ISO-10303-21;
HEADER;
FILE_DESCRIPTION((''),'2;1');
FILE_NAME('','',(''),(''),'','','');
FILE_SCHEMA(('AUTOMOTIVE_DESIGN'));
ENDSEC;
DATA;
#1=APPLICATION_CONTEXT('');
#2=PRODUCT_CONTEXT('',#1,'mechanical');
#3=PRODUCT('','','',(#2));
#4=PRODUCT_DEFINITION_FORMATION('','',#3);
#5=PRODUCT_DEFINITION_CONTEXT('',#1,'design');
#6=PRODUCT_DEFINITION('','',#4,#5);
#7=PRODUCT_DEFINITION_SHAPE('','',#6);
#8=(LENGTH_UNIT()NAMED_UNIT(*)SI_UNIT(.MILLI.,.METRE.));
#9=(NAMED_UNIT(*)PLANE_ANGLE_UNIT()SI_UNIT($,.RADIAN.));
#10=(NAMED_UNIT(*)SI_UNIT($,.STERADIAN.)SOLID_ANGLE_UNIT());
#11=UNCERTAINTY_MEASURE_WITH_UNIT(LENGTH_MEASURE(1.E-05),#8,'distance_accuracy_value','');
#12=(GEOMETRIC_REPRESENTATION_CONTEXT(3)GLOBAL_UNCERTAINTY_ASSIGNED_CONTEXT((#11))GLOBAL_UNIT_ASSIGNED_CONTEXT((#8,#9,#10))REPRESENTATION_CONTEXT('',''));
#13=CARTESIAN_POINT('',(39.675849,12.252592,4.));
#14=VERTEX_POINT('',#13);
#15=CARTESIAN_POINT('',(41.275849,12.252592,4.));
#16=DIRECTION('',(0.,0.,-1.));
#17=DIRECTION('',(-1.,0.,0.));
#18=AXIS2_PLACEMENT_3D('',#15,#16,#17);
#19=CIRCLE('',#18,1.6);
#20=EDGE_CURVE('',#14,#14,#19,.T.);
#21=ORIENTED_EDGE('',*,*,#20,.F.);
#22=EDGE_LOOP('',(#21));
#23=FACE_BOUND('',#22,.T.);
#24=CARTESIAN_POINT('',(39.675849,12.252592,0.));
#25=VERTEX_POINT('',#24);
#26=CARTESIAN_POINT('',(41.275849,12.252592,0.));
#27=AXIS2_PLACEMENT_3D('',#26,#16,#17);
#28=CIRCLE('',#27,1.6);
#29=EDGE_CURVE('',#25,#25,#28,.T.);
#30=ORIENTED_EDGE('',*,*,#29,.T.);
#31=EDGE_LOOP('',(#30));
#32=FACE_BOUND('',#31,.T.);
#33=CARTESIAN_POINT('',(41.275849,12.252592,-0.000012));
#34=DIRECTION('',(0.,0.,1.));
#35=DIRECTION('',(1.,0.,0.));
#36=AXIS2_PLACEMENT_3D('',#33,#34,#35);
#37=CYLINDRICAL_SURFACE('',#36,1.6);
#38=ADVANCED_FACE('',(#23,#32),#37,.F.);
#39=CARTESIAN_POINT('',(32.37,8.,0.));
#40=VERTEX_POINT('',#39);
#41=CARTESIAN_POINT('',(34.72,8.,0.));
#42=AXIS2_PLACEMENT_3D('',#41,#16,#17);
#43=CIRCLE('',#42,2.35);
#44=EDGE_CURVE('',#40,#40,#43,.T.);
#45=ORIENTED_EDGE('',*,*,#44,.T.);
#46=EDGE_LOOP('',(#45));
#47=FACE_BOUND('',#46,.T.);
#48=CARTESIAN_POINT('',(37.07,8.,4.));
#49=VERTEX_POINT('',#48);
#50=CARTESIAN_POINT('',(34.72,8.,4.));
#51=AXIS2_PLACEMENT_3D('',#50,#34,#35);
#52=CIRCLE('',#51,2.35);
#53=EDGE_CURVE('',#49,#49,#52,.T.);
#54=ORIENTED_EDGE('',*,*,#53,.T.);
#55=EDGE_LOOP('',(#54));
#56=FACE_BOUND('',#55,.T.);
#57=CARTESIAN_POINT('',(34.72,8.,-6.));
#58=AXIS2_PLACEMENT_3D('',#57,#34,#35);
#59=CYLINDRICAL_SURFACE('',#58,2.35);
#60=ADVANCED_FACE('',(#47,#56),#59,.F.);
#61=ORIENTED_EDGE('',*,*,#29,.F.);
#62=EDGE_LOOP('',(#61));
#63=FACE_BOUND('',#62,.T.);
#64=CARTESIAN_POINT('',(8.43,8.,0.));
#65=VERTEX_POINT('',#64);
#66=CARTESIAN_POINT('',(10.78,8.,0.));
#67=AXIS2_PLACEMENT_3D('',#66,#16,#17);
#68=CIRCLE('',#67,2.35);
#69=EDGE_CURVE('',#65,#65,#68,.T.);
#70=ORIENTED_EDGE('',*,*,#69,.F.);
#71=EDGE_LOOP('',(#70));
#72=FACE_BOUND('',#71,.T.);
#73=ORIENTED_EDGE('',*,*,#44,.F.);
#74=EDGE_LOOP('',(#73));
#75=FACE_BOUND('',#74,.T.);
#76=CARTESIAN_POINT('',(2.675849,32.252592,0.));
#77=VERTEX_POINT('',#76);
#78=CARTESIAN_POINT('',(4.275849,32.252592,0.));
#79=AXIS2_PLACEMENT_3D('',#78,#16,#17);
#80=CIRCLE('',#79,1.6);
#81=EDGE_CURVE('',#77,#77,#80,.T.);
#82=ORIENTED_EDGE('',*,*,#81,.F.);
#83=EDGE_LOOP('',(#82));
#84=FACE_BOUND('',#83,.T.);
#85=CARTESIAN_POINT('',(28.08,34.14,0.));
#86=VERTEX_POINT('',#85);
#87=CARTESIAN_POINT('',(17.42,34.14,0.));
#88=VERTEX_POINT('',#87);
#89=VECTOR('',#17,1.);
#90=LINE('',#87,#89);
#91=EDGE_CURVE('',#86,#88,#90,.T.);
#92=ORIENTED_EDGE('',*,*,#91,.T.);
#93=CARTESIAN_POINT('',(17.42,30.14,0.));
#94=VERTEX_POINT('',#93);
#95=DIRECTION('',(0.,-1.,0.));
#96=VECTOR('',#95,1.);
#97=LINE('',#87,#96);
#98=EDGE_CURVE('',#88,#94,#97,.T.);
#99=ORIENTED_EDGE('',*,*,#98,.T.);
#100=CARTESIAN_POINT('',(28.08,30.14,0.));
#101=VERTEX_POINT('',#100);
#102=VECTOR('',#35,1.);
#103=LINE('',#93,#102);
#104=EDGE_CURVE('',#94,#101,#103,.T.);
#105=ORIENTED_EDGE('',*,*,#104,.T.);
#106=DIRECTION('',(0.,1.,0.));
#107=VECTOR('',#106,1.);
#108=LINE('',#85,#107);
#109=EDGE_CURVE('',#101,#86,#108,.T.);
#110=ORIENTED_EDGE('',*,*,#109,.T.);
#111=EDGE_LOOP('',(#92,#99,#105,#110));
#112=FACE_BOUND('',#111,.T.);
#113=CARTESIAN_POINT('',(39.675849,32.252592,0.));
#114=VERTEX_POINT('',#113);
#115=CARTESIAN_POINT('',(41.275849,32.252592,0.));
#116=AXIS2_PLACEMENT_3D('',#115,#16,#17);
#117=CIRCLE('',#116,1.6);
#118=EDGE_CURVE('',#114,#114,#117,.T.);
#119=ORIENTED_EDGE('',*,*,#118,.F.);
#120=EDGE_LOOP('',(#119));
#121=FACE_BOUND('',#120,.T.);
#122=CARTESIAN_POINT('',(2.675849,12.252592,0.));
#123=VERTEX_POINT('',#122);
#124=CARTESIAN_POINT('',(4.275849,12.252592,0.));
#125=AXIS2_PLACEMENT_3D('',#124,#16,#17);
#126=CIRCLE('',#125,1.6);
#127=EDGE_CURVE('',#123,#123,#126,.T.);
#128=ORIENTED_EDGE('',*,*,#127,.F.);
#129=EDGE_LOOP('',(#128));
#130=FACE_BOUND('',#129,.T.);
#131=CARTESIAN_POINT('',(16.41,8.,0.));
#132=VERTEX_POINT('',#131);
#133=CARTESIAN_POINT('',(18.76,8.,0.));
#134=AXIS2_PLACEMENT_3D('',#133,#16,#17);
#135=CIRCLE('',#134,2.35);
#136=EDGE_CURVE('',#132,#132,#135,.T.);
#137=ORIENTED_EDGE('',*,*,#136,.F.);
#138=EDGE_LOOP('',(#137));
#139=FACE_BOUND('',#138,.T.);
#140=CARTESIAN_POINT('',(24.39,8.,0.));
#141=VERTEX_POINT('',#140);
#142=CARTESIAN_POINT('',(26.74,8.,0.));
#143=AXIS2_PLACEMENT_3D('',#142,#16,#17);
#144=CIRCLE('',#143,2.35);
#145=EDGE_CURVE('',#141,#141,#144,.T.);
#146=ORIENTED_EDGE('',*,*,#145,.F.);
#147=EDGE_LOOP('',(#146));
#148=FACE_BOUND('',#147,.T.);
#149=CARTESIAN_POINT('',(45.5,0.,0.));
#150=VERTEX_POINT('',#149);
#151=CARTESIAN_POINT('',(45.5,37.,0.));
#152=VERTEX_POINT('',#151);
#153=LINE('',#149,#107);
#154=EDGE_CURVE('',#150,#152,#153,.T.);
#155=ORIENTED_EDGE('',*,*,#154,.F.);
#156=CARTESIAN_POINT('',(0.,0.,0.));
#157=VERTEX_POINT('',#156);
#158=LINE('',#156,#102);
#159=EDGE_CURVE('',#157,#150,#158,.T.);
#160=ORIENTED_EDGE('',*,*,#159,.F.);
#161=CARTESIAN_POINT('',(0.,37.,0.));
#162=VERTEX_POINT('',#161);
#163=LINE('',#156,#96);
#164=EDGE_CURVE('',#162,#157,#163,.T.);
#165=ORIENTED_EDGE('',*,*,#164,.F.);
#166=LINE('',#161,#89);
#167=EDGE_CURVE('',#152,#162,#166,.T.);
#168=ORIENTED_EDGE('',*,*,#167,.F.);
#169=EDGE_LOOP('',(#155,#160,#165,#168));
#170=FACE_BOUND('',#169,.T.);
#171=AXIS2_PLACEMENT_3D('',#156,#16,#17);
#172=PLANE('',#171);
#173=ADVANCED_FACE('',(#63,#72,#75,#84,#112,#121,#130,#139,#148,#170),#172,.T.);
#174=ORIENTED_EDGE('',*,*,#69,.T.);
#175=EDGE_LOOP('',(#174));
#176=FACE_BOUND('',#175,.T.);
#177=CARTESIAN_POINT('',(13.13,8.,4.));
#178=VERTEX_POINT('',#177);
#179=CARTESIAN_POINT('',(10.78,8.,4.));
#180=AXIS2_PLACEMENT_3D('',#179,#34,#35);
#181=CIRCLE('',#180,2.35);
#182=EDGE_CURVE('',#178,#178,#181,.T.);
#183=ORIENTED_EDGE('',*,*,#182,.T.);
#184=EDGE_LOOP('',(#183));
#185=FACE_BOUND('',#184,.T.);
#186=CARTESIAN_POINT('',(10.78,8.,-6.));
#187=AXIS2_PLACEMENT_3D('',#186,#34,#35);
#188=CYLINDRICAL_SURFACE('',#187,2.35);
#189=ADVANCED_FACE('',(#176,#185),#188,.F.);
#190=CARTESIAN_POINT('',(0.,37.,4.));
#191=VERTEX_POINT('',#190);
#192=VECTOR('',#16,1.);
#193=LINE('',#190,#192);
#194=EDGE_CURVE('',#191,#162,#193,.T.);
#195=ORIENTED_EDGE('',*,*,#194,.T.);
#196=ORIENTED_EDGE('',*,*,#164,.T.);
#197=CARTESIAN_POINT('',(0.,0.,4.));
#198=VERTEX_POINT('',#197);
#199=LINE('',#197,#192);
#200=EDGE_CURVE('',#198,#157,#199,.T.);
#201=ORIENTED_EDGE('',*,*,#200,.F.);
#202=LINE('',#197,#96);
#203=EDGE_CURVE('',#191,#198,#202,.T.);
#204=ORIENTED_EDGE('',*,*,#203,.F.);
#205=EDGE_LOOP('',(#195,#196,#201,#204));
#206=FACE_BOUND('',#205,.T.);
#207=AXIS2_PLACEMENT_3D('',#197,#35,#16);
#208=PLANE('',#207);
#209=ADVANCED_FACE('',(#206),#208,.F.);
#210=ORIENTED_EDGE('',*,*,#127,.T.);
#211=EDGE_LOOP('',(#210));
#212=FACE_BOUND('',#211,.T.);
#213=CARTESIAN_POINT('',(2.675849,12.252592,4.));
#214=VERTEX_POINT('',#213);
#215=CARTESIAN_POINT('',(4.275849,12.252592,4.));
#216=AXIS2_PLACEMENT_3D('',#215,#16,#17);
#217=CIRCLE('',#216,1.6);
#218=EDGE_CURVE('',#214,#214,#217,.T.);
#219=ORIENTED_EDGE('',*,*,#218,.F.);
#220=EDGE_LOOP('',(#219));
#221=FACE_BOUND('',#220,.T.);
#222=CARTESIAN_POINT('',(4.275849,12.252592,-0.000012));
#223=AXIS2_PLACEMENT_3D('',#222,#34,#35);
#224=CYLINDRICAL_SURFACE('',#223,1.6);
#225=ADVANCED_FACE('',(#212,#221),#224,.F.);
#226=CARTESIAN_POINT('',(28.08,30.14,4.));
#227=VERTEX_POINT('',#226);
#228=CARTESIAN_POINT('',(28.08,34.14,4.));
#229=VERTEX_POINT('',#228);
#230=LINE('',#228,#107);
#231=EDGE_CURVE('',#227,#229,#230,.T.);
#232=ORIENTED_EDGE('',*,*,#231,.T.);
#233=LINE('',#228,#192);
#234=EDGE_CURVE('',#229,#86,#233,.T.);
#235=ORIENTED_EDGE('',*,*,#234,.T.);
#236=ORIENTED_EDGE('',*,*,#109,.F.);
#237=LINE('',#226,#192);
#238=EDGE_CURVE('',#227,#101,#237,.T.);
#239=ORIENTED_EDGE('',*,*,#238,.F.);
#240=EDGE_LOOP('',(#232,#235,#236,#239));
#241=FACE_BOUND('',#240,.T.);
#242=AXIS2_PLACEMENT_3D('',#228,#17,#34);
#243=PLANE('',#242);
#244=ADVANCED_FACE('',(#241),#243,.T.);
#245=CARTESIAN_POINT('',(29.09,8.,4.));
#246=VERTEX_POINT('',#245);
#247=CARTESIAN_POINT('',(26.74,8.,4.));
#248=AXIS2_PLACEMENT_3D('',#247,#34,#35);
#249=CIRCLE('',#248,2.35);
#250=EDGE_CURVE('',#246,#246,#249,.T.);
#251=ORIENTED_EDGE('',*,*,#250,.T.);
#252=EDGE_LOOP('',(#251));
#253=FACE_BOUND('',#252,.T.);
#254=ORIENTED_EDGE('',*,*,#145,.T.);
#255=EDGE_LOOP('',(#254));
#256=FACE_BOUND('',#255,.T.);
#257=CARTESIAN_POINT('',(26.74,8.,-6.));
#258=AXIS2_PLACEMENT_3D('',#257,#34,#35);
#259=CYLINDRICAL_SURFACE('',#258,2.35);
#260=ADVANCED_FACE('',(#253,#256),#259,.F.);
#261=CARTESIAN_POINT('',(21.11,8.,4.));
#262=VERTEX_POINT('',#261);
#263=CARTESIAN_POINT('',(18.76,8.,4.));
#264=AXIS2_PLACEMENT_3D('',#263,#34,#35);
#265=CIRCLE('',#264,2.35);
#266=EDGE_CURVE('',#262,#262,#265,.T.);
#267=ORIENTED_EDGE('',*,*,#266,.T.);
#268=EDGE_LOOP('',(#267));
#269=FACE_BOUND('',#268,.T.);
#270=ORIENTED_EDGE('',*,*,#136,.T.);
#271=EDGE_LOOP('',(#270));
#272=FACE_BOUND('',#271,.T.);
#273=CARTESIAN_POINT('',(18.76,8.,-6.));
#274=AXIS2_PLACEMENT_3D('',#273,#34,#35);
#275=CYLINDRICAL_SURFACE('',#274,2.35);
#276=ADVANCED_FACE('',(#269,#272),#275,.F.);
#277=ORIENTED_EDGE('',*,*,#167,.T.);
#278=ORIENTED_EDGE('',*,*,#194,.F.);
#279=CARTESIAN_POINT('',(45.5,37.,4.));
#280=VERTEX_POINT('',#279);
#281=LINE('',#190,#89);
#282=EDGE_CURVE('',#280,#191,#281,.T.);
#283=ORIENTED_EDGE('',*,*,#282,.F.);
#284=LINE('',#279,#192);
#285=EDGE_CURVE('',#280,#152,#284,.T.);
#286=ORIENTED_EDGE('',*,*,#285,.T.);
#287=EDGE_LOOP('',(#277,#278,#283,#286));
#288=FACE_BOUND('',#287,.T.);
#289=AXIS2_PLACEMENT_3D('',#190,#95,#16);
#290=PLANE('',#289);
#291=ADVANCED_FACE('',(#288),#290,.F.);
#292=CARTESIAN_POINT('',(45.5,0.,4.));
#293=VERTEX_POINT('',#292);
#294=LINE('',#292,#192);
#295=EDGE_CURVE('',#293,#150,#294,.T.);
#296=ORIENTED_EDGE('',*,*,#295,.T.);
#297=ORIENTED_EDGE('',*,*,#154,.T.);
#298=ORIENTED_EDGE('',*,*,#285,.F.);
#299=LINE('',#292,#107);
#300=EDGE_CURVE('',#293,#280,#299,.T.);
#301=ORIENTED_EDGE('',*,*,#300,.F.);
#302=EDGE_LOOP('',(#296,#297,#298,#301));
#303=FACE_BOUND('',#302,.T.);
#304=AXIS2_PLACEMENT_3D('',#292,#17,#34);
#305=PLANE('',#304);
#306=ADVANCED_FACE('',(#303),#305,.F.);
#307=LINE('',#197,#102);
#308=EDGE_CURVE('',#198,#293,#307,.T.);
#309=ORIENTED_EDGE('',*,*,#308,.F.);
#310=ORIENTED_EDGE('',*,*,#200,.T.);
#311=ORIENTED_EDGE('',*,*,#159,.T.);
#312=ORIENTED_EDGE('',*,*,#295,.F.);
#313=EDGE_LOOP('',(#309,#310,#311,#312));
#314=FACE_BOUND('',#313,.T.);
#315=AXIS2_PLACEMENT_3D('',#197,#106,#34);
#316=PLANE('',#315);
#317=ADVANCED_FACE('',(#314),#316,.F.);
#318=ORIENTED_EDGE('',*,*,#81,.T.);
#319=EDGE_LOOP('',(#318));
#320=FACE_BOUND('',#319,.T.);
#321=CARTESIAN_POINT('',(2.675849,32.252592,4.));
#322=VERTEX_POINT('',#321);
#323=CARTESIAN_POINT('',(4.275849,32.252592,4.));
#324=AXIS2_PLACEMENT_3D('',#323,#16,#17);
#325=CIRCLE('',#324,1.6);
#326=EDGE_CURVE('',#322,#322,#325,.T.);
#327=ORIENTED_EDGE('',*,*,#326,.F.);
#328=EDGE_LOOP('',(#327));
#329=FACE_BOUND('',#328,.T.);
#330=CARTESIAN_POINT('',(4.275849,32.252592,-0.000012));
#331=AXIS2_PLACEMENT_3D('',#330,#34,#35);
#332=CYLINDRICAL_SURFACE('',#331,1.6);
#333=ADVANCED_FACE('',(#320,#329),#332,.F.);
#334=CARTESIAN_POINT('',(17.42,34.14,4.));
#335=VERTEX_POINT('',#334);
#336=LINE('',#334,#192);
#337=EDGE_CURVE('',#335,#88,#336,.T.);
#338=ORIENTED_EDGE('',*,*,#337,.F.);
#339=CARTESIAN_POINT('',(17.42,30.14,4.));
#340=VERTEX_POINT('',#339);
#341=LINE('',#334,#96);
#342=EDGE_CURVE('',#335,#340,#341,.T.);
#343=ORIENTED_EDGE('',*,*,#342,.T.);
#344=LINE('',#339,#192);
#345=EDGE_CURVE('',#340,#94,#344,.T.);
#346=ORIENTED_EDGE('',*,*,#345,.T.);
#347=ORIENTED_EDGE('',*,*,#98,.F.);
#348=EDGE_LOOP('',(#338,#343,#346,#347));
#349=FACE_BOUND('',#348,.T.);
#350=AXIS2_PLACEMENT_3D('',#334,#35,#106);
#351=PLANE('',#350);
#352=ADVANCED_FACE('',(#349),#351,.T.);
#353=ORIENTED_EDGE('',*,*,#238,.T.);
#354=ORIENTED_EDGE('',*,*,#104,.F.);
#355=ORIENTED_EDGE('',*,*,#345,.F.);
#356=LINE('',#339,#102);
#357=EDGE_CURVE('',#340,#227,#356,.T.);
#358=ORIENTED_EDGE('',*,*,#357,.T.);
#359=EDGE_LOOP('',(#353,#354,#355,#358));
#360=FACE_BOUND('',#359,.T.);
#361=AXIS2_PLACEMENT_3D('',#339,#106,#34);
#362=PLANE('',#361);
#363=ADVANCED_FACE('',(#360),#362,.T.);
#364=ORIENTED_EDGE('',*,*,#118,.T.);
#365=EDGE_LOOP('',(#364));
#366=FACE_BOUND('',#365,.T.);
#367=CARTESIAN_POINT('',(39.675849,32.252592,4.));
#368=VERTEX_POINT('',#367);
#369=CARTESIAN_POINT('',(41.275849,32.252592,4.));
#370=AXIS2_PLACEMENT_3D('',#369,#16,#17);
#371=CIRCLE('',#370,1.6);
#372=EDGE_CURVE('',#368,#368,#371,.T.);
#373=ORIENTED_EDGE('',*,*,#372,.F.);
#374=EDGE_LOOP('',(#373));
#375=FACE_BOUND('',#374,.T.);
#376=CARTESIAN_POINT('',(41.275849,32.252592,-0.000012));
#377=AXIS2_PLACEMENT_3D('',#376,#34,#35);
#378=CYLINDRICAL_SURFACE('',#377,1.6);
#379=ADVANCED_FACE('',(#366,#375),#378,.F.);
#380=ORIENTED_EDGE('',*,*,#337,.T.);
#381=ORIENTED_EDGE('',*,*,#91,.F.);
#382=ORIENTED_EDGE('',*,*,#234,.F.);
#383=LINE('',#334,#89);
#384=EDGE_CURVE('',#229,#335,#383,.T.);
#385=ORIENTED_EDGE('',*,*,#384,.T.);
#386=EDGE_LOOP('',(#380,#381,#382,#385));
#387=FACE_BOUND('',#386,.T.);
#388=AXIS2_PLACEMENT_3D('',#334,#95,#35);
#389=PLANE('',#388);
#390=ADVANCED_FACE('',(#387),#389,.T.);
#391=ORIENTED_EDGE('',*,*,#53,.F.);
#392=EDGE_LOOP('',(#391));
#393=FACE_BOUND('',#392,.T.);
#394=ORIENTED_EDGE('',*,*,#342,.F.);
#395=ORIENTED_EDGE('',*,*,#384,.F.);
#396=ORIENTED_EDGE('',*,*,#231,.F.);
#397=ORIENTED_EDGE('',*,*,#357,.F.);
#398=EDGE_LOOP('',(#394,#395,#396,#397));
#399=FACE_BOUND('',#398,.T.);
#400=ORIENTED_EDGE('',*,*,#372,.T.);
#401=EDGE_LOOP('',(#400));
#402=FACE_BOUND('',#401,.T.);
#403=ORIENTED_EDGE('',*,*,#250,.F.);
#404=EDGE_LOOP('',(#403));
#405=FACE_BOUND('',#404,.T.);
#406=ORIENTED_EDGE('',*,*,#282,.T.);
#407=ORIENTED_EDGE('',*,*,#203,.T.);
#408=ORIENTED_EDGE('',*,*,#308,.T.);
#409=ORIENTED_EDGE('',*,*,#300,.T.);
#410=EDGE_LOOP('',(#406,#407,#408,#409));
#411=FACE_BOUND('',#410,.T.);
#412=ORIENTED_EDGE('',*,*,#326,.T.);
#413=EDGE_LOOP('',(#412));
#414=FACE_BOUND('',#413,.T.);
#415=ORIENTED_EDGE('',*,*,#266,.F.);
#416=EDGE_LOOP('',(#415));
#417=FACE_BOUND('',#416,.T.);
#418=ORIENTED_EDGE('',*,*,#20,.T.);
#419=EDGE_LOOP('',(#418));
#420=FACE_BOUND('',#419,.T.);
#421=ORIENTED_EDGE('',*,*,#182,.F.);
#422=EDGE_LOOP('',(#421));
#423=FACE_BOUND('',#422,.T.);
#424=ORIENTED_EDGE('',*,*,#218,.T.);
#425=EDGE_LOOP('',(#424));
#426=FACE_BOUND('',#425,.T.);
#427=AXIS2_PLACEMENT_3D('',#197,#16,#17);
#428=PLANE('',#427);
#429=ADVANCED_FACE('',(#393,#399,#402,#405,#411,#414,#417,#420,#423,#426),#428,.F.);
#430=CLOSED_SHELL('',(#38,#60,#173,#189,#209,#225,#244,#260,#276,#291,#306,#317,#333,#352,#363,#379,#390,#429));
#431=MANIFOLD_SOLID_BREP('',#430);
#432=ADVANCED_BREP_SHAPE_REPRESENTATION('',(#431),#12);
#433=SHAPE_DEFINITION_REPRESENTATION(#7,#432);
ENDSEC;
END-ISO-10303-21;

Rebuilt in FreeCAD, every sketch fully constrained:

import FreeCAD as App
import Part
import Sketcher

V = App.Vector


def add_polygon(sketch, points):
    """Adds a closed chain of lines whose ends are joined by coincident constraints."""
    first, n = sketch.GeometryCount, len(points)
    for a, b in zip(points, points[1:] + points[:1]):
        sketch.addGeometry(Part.LineSegment(App.Vector(*a, 0), App.Vector(*b, 0)), False)
    for i in range(n):
        sketch.addConstraint(Sketcher.Constraint("Coincident", first + i, 2, first + (i + 1) % n, 1))

doc = App.newDocument("Part")
body = doc.addObject("PartDesign::Body", "Body")

# Sketch on XY plane
sketch1 = body.newObject("Sketcher::SketchObject", "Sketch")
sketch1.AttachmentSupport = (doc.getObject("XY_Plane"), [""])
sketch1.MapMode = "FlatFace"
add_polygon(sketch1, [(0, 37), (0, 0), (45.5, 0), (45.5, 37)])  # lines 0-3
add_polygon(sketch1, [(28.1, 30.1), (17.4, 30.1), (17.4, 34.1), (28.1, 34.1)])  # lines 4-7
sketch1.addConstraint([
    Sketcher.Constraint("Vertical", 0),
    Sketcher.Constraint("Horizontal", 1),
    Sketcher.Constraint("Vertical", 2),
    Sketcher.Constraint("Horizontal", 3),
    Sketcher.Constraint("Horizontal", 4),
    Sketcher.Constraint("Vertical", 5),
    Sketcher.Constraint("Horizontal", 6),
    Sketcher.Constraint("Vertical", 7),
    Sketcher.Constraint("Coincident", 0, 2, -1, 1),
    Sketcher.Constraint("DistanceY", 0, 2, 0, 1, 37.0),
    Sketcher.Constraint("DistanceY", 5, 1, 5, 2, 4.0),
    Sketcher.Constraint("DistanceX", 1, 1, 1, 2, 45.5),
    Sketcher.Constraint("DistanceX", 4, 2, 4, 1, 10.66),
    Sketcher.Constraint("DistanceX", -1, 1, 4, 2, 17.42),
    Sketcher.Constraint("DistanceY", -1, 1, 4, 2, 30.14),
])
pad1 = body.newObject("PartDesign::Pad", "Pad")
pad1.Profile = sketch1
pad1.Length = 4

# Sketch on XY plane
sketch2 = body.newObject("Sketcher::SketchObject", "Sketch001")
sketch2.AttachmentSupport = (doc.getObject("XY_Plane"), [""])
sketch2.MapMode = "FlatFace"
sketch2.addGeometry([
    Part.Circle(V(41.3, 32.3, 0), V(0, 0, 1), 1.6),
    Part.Circle(V(41.3, 12.3, 0), V(0, 0, 1), 1.6),
    Part.Circle(V(4.3, 12.3, 0), V(0, 0, 1), 1.6),
    Part.Circle(V(4.3, 32.3, 0), V(0, 0, 1), 1.6),
], False)
sketch2.addConstraint([
    Sketcher.Constraint("Equal", 0, 1),
    Sketcher.Constraint("Equal", 1, 2),
    Sketcher.Constraint("Equal", 2, 3),
    Sketcher.Constraint("Horizontal", 1, 3, 2, 3),
    Sketcher.Constraint("Horizontal", 0, 3, 3, 3),
    Sketcher.Constraint("Vertical", 0, 3, 1, 3),
    Sketcher.Constraint("Vertical", 2, 3, 3, 3),
    Sketcher.Constraint("Diameter", 0, 3.2),
    Sketcher.Constraint("DistanceY", 1, 3, 0, 3, 20.0),
    Sketcher.Constraint("DistanceX", 2, 3, 1, 3, 37.0),
    Sketcher.Constraint("DistanceX", -1, 1, 0, 3, 41.275849),
    Sketcher.Constraint("DistanceY", -1, 1, 0, 3, 32.252592),
])
pocket1 = body.newObject("PartDesign::Pocket", "Pocket")
pocket1.Profile = sketch2
pocket1.Type = "ThroughAll"
pocket1.Midplane = True

# Sketch on XY plane
sketch3 = body.newObject("Sketcher::SketchObject", "Sketch002")
sketch3.AttachmentSupport = (doc.getObject("XY_Plane"), [""])
sketch3.MapMode = "FlatFace"
sketch3.AttachmentOffset = App.Placement(V(0, 0, 4), App.Rotation())
sketch3.addGeometry([
    Part.Circle(V(10.8, 8, 0), V(0, 0, 1), 2.4),
    Part.Circle(V(18.8, 8, 0), V(0, 0, 1), 2.4),
    Part.Circle(V(26.7, 8, 0), V(0, 0, 1), 2.4),
    Part.Circle(V(34.7, 8, 0), V(0, 0, 1), 2.4),
], False)
sketch3.addConstraint([
    Sketcher.Constraint("Equal", 0, 1),
    Sketcher.Constraint("Equal", 1, 2),
    Sketcher.Constraint("Equal", 2, 3),
    Sketcher.Constraint("Horizontal", 0, 3, 1, 3),
    Sketcher.Constraint("Horizontal", 1, 3, 2, 3),
    Sketcher.Constraint("Horizontal", 2, 3, 3, 3),
    Sketcher.Constraint("Diameter", 0, 4.7),
    Sketcher.Constraint("DistanceY", -1, 1, 0, 3, 8.0),
    Sketcher.Constraint("DistanceX", -1, 1, 0, 3, 10.78),
    Sketcher.Constraint("DistanceX", -1, 1, 1, 3, 18.76),
    Sketcher.Constraint("DistanceX", -1, 1, 2, 3, 26.74),
    Sketcher.Constraint("DistanceX", -1, 1, 3, 3, 34.72),
])
pocket2 = body.newObject("PartDesign::Pocket", "Pocket001")
pocket2.Profile = sketch3
pocket2.Length = 10

doc.recompute()
